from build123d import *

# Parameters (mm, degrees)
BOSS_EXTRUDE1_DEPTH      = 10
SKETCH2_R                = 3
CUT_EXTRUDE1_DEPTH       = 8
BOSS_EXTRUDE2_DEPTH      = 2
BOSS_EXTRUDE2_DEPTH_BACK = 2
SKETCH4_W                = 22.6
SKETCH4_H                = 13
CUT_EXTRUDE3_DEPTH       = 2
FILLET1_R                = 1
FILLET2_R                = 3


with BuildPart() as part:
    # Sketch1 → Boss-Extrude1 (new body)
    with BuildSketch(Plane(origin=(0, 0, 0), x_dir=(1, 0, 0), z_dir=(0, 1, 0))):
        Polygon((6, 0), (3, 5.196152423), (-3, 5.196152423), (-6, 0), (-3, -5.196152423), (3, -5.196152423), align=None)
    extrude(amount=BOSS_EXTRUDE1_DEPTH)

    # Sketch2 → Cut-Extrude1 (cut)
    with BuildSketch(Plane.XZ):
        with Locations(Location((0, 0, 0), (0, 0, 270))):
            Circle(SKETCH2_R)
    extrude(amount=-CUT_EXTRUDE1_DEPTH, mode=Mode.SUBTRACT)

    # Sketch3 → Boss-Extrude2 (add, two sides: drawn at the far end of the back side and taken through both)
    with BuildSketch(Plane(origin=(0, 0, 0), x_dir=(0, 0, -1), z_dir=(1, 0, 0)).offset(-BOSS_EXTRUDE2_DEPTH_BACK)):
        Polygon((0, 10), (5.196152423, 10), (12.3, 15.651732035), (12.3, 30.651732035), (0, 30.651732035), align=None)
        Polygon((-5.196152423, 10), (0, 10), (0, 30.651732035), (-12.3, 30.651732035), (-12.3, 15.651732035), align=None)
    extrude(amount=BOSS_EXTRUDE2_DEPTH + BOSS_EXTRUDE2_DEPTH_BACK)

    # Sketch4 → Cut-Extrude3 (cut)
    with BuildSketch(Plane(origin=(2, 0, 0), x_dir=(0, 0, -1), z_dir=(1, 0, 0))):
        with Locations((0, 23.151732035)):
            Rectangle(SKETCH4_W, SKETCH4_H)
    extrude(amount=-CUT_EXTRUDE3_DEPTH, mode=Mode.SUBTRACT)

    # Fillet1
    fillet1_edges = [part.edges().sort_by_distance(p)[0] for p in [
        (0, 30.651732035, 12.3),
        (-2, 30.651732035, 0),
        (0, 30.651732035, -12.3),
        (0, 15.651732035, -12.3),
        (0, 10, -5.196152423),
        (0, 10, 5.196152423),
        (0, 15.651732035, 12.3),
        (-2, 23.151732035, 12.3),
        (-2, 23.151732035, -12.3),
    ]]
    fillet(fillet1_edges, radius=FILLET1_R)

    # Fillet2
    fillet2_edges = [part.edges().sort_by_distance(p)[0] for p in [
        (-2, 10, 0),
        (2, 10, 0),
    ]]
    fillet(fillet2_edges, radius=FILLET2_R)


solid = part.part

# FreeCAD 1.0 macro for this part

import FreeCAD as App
import Part
import Sketcher
Q = App.Units.Quantity


def edges_at(feature, points):
    """Names of the edges that pass closest to the given points."""
    edges = feature.Shape.Edges
    near = lambda p: min(range(len(edges)), key=lambda i: edges[i].distToShape(Part.Vertex(*p))[0])
    return sorted({f"Edge{near(p) + 1}" for p in points})

doc = App.newDocument("Part")
body = doc.addObject("PartDesign::Body", "Body")

sketch1 = doc.addObject("Sketcher::SketchObject", "Sketch")
body.addObject(sketch1)
sketch1.AttachmentSupport = (doc.XZ_Plane, [""])
sketch1.MapMode = "FlatFace"
sketch1.addGeometry(Part.LineSegment(App.Vector(6, 0, 0), App.Vector(3, -5.196152, 0)), False)
sketch1.addGeometry(Part.LineSegment(App.Vector(3, -5.196152, 0), App.Vector(-3, -5.196152, 0)), False)
sketch1.addGeometry(Part.LineSegment(App.Vector(-3, -5.196152, 0), App.Vector(-6, 0, 0)), False)
sketch1.addGeometry(Part.LineSegment(App.Vector(-6, 0, 0), App.Vector(-3, 5.196152, 0)), False)
sketch1.addGeometry(Part.LineSegment(App.Vector(-3, 5.196152, 0), App.Vector(3, 5.196152, 0)), False)
sketch1.addGeometry(Part.LineSegment(App.Vector(3, 5.196152, 0), App.Vector(6, 0, 0)), False)
sketch1.addConstraint(Sketcher.Constraint("Coincident", 0, 2, 1, 1))
sketch1.addConstraint(Sketcher.Constraint("Coincident", 1, 2, 2, 1))
sketch1.addConstraint(Sketcher.Constraint("Coincident", 2, 2, 3, 1))
sketch1.addConstraint(Sketcher.Constraint("Coincident", 3, 2, 4, 1))
sketch1.addConstraint(Sketcher.Constraint("Coincident", 4, 2, 5, 1))
sketch1.addConstraint(Sketcher.Constraint("Coincident", 5, 2, 0, 1))
sketch1.addConstraint(Sketcher.Constraint("Horizontal", 1))
sketch1.addConstraint(Sketcher.Constraint("Horizontal", 4))
sketch1.addConstraint(Sketcher.Constraint("Symmetric", 0, 2, 3, 2, -1, 1))
sketch1.addConstraint(Sketcher.Constraint("Symmetric", 2, 2, 5, 2, -1, 1))
sketch1.addConstraint(Sketcher.Constraint("PointOnObject", 2, 2, -1))
sketch1.addConstraint(Sketcher.Constraint("Parallel", 2, 5))
sketch1.addConstraint(Sketcher.Constraint("Vertical", 1, 2, 3, 2))
sketch1.addConstraint(Sketcher.Constraint("DistanceX", 1, 2, 1, 1, 6.0))
sketch1.addConstraint(Sketcher.Constraint("Angle", 0, Q("-120 deg")))
sketch1.addConstraint(Sketcher.Constraint("Distance", 0, 6.0))
pad1 = doc.addObject("PartDesign::Pad", "Pad")
body.addObject(pad1)
pad1.Profile = sketch1
pad1.Length = 10
pad1.Reversed = True

sketch2 = doc.addObject("Sketcher::SketchObject", "Sketch001")
body.addObject(sketch2)
sketch2.AttachmentSupport = (doc.XZ_Plane, [""])
sketch2.MapMode = "FlatFace"
sketch2.addGeometry(Part.Circle(App.Vector(0, 0, 0), App.Vector(0, 0, 1), 3), False)
sketch2.addConstraint(Sketcher.Constraint("Coincident", 0, 3, -1, 1))
sketch2.addConstraint(Sketcher.Constraint("Diameter", 0, 6.0))
pocket1 = doc.addObject("PartDesign::Pocket", "Pocket")
body.addObject(pocket1)
pocket1.Profile = sketch2
pocket1.Length = 8

sketch3 = doc.addObject("Sketcher::SketchObject", "Sketch002")
body.addObject(sketch3)
sketch3.AttachmentSupport = (doc.YZ_Plane, [""])
sketch3.MapMode = "FlatFace"
sketch3.addGeometry(Part.LineSegment(App.Vector(10, -5.196152, 0), App.Vector(15.651732, -12.3, 0)), False)
sketch3.addGeometry(Part.LineSegment(App.Vector(15.651732, -12.3, 0), App.Vector(30.651732, -12.3, 0)), False)
sketch3.addGeometry(Part.LineSegment(App.Vector(30.651732, -12.3, 0), App.Vector(30.651732, 12.3, 0)), False)
sketch3.addGeometry(Part.LineSegment(App.Vector(30.651732, 12.3, 0), App.Vector(15.651732, 12.3, 0)), False)
sketch3.addGeometry(Part.LineSegment(App.Vector(15.651732, 12.3, 0), App.Vector(10, 5.196152, 0)), False)
sketch3.addGeometry(Part.LineSegment(App.Vector(10, 5.196152, 0), App.Vector(10, -5.196152, 0)), False)
sketch3.addConstraint(Sketcher.Constraint("Coincident", 0, 2, 1, 1))
sketch3.addConstraint(Sketcher.Constraint("Coincident", 1, 2, 2, 1))
sketch3.addConstraint(Sketcher.Constraint("Coincident", 2, 2, 3, 1))
sketch3.addConstraint(Sketcher.Constraint("Coincident", 3, 2, 4, 1))
sketch3.addConstraint(Sketcher.Constraint("Coincident", 4, 2, 5, 1))
sketch3.addConstraint(Sketcher.Constraint("Coincident", 5, 2, 0, 1))
sketch3.addConstraint(Sketcher.Constraint("Horizontal", 1))
sketch3.addConstraint(Sketcher.Constraint("Vertical", 2))
sketch3.addConstraint(Sketcher.Constraint("Horizontal", 3))
sketch3.addConstraint(Sketcher.Constraint("Vertical", 5))
sketch3.addConstraint(Sketcher.Constraint("Symmetric", 0, 2, 3, 2, -1))
sketch3.addConstraint(Sketcher.Constraint("Equal", 0, 4))
sketch3.addConstraint(Sketcher.Constraint("DistanceX", 1, 1, 1, 2, 15.0))
sketch3.addConstraint(Sketcher.Constraint("DistanceY", 2, 1, 2, 2, 24.6))
sketch3.addConstraint(Sketcher.Constraint("DistanceX", -1, 1, 4, 2, 10.0))
sketch3.addConstraint(Sketcher.Constraint("DistanceY", 5, 2, 5, 1, 10.392305))
sketch3.addConstraint(Sketcher.Constraint("Distance", 0, 9.077815))
pad2 = doc.addObject("PartDesign::Pad", "Pad001")
body.addObject(pad2)
pad2.Profile = sketch3
pad2.Type = "TwoLengths"
pad2.Length = 2
pad2.Length2 = 2

sketch4 = doc.addObject("Sketcher::SketchObject", "Sketch003")
body.addObject(sketch4)
sketch4.AttachmentSupport = (doc.YZ_Plane, [""])
sketch4.MapMode = "FlatFace"
sketch4.AttachmentOffset = App.Placement(App.Vector(0, 0, 2), App.Rotation())
sketch4.addGeometry(Part.LineSegment(App.Vector(29.651732, 11.3, 0), App.Vector(16.651732, 11.3, 0)), False)
sketch4.addGeometry(Part.LineSegment(App.Vector(16.651732, 11.3, 0), App.Vector(16.651732, -11.3, 0)), False)
sketch4.addGeometry(Part.LineSegment(App.Vector(16.651732, -11.3, 0), App.Vector(29.651732, -11.3, 0)), False)
sketch4.addGeometry(Part.LineSegment(App.Vector(29.651732, -11.3, 0), App.Vector(29.651732, 11.3, 0)), False)
sketch4.addConstraint(Sketcher.Constraint("Coincident", 0, 2, 1, 1))
sketch4.addConstraint(Sketcher.Constraint("Coincident", 1, 2, 2, 1))
sketch4.addConstraint(Sketcher.Constraint("Coincident", 2, 2, 3, 1))
sketch4.addConstraint(Sketcher.Constraint("Coincident", 3, 2, 0, 1))
sketch4.addConstraint(Sketcher.Constraint("Horizontal", 0))
sketch4.addConstraint(Sketcher.Constraint("Vertical", 1))
sketch4.addConstraint(Sketcher.Constraint("Horizontal", 2))
sketch4.addConstraint(Sketcher.Constraint("Vertical", 3))
sketch4.addConstraint(Sketcher.Constraint("DistanceX", 0, 2, 0, 1, 13.0))
sketch4.addConstraint(Sketcher.Constraint("DistanceY", 1, 2, 1, 1, 22.6))
sketch4.addConstraint(Sketcher.Constraint("DistanceY", -1, 1, 0, 2, 11.3))
sketch4.addConstraint(Sketcher.Constraint("DistanceX", -1, 1, 0, 2, 16.651732))
pocket2 = doc.addObject("PartDesign::Pocket", "Pocket001")
body.addObject(pocket2)
pocket2.Profile = sketch4
pocket2.Length = 2
doc.recompute()

fillet = doc.addObject("PartDesign::Fillet", "Fillet")
body.addObject(fillet)
fillet.Base = (pocket2, edges_at(pocket2, [
    (0, 30.652, 12.3),
    (-2, 30.652, 0),
    (0, 30.652, -12.3),
    (0, 15.652, -12.3),
    (0, 10, -5.196),
    (0, 10, 5.196),
    (0, 15.652, 12.3),
    (-2, 23.152, 12.3),
    (-2, 23.152, -12.3),
]))
fillet.Radius = 1
doc.recompute()

fillet2 = doc.addObject("PartDesign::Fillet", "Fillet001")
body.addObject(fillet2)
fillet2.Base = (fillet, edges_at(fillet, [(-2, 10, 0), (2, 10, 0)]))
fillet2.Radius = 3

doc.recompute()
